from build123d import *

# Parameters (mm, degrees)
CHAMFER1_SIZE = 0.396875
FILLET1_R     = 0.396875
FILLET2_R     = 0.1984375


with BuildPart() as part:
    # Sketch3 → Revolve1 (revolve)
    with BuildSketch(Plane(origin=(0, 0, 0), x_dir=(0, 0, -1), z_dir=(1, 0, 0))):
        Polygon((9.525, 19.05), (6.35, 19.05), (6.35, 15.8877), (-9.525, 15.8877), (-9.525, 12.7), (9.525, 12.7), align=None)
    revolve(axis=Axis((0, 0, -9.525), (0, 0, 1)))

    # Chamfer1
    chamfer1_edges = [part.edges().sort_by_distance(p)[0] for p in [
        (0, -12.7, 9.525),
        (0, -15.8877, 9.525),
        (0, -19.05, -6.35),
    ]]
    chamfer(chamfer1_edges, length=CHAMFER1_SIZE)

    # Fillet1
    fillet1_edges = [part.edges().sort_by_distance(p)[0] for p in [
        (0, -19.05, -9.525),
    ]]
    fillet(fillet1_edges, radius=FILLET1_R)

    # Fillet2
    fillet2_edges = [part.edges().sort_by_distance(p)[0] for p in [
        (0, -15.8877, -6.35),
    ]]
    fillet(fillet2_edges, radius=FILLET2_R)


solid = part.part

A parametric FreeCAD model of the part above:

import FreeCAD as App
import Part
import Sketcher
from FreeCAD import Vector
Q = App.Units.Quantity


def edges_at(feature, points):
    """Names of the edges that pass closest to the given points."""
    edges = feature.Shape.Edges
    near = lambda p: min(range(len(edges)), key=lambda i: edges[i].distToShape(Part.Vertex(*p))[0])
    return sorted({f"Edge{near(p) + 1}" for p in points})

doc = App.newDocument("Part")
body = doc.addObject("PartDesign::Body", "Body")

# Sketch on YZ plane
sketch1 = body.newObject("Sketcher::SketchObject", "Sketch")
sketch1.AttachmentSupport = (doc.getObject("YZ_Plane"), [""])
sketch1.MapMode = "FlatFace"
sketch1.addGeometry([
    Part.LineSegment(Vector(19.05, -9.525, 0), Vector(19.05, -6.35, 0)),  # 0
    Part.LineSegment(Vector(19.05, -6.35, 0), Vector(15.8877, -6.35, 0)),  # 1
    Part.LineSegment(Vector(15.8877, -6.35, 0), Vector(15.8877, 9.525, 0)),  # 2
    Part.LineSegment(Vector(15.8877, 9.525, 0), Vector(12.7, 9.525, 0)),  # 3
    Part.LineSegment(Vector(12.7, 9.525, 0), Vector(12.7, -9.525, 0)),  # 4
    Part.LineSegment(Vector(12.7, -9.525, 0), Vector(19.05, -9.525, 0)),  # 5
], False)
sketch1.addConstraint([
    Sketcher.Constraint("Coincident", 0, 2, 1, 1),
    Sketcher.Constraint("Coincident", 1, 2, 2, 1),
    Sketcher.Constraint("Coincident", 2, 2, 3, 1),
    Sketcher.Constraint("Coincident", 3, 2, 4, 1),
    Sketcher.Constraint("Coincident", 4, 2, 5, 1),
    Sketcher.Constraint("Coincident", 5, 2, 0, 1),
    Sketcher.Constraint("Vertical", 0),
    Sketcher.Constraint("Horizontal", 1),
    Sketcher.Constraint("Vertical", 2),
    Sketcher.Constraint("Horizontal", 3),
    Sketcher.Constraint("Vertical", 4),
    Sketcher.Constraint("Horizontal", 5),
    Sketcher.Constraint("DistanceX", 5, 1, 5, 2, Q("0.25 in")),
    Sketcher.Constraint("DistanceY", 4, 2, 4, 1, Q("0.75 in")),
    Sketcher.Constraint("DistanceX", -1, 1, 3, 2, Q("0.5 in")),
    Sketcher.Constraint("DistanceY", 0, 1, 0, 2, Q("0.125 in")),
    Sketcher.Constraint("DistanceY", 0, 2, -1, 1, Q("0.25 in")),
    Sketcher.Constraint("DistanceX", 1, 2, 1, 1, Q("0.1245 in")),
])
revolution = body.newObject("PartDesign::Revolution", "Revolution")
revolution.Profile = sketch1
revolution.ReferenceAxis = (sketch1, ["V_Axis"])
revolution.Angle = 360
doc.recompute()

chamfer = body.newObject("PartDesign::Chamfer", "Chamfer")
chamfer.Base = (revolution, edges_at(revolution, [(0, -12.7, 9.525), (0, -15.888, 9.525), (0, -19.05, -6.35)]))
chamfer.Size = Q("0.015625 in")
doc.recompute()

fillet = body.newObject("PartDesign::Fillet", "Fillet")
fillet.Base = (chamfer, edges_at(chamfer, [(0, -19.05, -9.525)]))
fillet.Radius = Q("0.015625 in")
doc.recompute()

fillet2 = body.newObject("PartDesign::Fillet", "Fillet001")
fillet2.Base = (fillet, edges_at(fillet, [(0, -15.888, -6.35)]))
fillet2.Radius = 0.198437

doc.recompute()
